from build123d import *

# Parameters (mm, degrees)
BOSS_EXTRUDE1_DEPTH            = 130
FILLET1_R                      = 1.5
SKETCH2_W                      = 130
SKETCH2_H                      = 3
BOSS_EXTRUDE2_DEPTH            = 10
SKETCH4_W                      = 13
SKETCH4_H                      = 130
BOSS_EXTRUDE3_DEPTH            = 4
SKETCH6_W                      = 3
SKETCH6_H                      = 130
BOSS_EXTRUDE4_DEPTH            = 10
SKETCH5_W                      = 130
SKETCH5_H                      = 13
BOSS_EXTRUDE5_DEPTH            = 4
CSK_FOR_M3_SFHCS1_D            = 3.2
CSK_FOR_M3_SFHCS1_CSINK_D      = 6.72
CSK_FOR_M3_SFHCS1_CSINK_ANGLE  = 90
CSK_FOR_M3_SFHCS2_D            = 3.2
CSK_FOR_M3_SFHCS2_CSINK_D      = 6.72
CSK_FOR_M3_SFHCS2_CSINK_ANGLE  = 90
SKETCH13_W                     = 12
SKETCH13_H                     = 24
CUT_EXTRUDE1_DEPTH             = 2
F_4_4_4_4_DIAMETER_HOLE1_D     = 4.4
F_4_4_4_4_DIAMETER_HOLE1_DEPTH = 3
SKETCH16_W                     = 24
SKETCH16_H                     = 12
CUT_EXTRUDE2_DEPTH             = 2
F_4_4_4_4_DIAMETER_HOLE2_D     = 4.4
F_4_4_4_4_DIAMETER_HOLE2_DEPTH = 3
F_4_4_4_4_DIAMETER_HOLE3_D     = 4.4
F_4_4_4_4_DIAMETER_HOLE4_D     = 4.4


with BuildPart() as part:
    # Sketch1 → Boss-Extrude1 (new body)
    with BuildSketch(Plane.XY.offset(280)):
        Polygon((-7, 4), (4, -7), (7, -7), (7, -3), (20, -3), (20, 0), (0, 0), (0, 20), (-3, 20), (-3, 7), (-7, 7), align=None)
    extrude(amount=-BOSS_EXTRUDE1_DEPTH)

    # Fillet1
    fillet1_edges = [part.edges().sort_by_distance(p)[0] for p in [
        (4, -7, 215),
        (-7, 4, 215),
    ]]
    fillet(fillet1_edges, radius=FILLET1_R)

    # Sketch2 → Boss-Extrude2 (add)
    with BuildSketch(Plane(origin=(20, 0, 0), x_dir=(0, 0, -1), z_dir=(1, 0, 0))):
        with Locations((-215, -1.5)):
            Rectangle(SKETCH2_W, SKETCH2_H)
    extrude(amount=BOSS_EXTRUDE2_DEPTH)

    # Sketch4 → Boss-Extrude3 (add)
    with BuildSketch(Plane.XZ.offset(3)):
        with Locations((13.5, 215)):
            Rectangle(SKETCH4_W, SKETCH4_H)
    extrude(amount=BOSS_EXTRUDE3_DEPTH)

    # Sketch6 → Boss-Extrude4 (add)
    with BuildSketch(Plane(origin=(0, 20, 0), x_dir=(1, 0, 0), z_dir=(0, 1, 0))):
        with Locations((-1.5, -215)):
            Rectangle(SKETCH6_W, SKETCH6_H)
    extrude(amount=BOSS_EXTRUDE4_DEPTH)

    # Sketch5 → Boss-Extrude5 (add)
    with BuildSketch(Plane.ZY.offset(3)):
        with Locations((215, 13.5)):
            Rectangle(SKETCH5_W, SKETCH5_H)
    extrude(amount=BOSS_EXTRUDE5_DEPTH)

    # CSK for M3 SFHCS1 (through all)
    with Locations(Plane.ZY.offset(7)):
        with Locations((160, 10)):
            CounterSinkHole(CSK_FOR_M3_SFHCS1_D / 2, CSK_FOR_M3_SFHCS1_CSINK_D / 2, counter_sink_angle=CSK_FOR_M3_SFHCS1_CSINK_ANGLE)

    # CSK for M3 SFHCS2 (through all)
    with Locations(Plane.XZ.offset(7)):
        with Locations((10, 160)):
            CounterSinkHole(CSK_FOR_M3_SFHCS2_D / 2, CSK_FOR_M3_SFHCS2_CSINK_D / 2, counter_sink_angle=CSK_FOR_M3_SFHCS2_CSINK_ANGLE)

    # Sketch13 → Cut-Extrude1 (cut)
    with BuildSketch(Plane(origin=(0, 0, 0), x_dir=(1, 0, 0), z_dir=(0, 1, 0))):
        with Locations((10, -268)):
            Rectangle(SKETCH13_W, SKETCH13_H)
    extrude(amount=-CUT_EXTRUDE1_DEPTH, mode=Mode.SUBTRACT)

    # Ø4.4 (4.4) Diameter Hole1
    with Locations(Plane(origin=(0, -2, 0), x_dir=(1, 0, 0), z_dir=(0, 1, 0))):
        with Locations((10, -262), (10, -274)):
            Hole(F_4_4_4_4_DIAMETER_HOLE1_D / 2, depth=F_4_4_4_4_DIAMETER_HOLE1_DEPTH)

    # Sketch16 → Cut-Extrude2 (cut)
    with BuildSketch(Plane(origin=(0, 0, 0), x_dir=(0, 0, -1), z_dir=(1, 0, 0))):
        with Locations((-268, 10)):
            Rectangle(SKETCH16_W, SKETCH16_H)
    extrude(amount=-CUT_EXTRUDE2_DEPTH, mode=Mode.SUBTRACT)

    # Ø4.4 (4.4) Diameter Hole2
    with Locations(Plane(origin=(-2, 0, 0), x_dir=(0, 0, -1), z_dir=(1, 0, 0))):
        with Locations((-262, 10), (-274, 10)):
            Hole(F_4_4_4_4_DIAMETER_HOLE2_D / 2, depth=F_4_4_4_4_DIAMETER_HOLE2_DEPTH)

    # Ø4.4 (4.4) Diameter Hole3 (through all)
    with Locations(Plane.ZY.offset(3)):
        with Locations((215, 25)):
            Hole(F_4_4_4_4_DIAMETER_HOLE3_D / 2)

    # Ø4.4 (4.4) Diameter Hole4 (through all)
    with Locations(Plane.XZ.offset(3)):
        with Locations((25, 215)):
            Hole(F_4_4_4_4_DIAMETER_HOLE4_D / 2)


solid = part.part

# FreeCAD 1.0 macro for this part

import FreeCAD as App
import Part
import Sketcher
from FreeCAD import Vector
Q = App.Units.Quantity


def edges_at(feature, points):
    """Names of the edges that pass closest to the given points."""
    edges = feature.Shape.Edges
    near = lambda p: min(range(len(edges)), key=lambda i: edges[i].distToShape(Part.Vertex(*p))[0])
    return sorted({f"Edge{near(p) + 1}" for p in points})

doc = App.newDocument("Part")
params = doc.addObject("Spreadsheet::Sheet", "Params")
for row, (alias, value) in enumerate([
    ("sketch1_width", "3 mm"),
    ("sketch1_width2", "13 mm"),
    ("sketch1_width3", "20 mm"),
    ("pad1_length", "130 mm"),
    ("fillet_radius", "1.5 mm"),
    ("sketch2_width", "3 mm"),
    ("sketch2_height", "130 mm"),
    ("pad2_length", "10 mm"),
    ("sketch3_width", "13 mm"),
    ("sketch3_height", "130 mm"),
    ("pad3_length", "4 mm"),
    ("sketch4_width", "3 mm"),
    ("sketch4_height", "130 mm"),
    ("pad4_length", "10 mm"),
    ("sketch5_width", "13 mm"),
    ("sketch5_height", "130 mm"),
    ("pad5_length", "4 mm"),
    ("sketch6_diameter", "3.2 mm"),
    ("hole_diameter", "3.2 mm"),
    ("hole_csink_diameter", "6.72 mm"),
    ("sketch7_diameter", "3.2 mm"),
    ("hole2_diameter", "3.2 mm"),
    ("hole2_csink_diameter", "6.72 mm"),
    ("sketch8_width", "12 mm"),
    ("sketch8_height", "24 mm"),
    ("pocket1_length", "2 mm"),
    ("sketch9_diameter", "4.4 mm"),
    ("hole3_diameter", "4.4 mm"),
    ("hole3_depth", "3 mm"),
    ("sketch10_width", "12 mm"),
    ("sketch10_height", "24 mm"),
    ("pocket2_length", "2 mm"),
    ("sketch11_diameter", "4.4 mm"),
    ("hole4_diameter", "4.4 mm"),
    ("hole4_depth", "3 mm"),
    ("sketch12_diameter", "4.4 mm"),
    ("hole5_diameter", "4.4 mm"),
    ("sketch13_diameter", "4.4 mm"),
    ("hole6_diameter", "4.4 mm"),
], start=1):
    params.set(f"A{row}", alias)
    params.set(f"B{row}", "=" + value)
    params.setAlias(f"B{row}", alias)

body = doc.addObject("PartDesign::Body", "Body")

# Sketch on XY plane
sketch1 = doc.addObject("Sketcher::SketchObject", "Sketch")
body.addObject(sketch1)
sketch1.AttachmentSupport = (doc.XY_Plane, [""])
sketch1.MapMode = "FlatFace"
sketch1.AttachmentOffset = App.Placement(Vector(0, 0, 280), App.Rotation())
sketch1.addGeometry(Part.LineSegment(Vector(-7, 4, 0), Vector(4, -7, 0)), False)
sketch1.addGeometry(Part.LineSegment(Vector(4, -7, 0), Vector(7, -7, 0)), False)
sketch1.addGeometry(Part.LineSegment(Vector(7, -7, 0), Vector(7, -3, 0)), False)
sketch1.addGeometry(Part.LineSegment(Vector(7, -3, 0), Vector(20, -3, 0)), False)
sketch1.addGeometry(Part.LineSegment(Vector(20, -3, 0), Vector(20, 0, 0)), False)
sketch1.addGeometry(Part.LineSegment(Vector(20, 0, 0), Vector(0, 0, 0)), False)
sketch1.addGeometry(Part.LineSegment(Vector(0, 0, 0), Vector(0, 20, 0)), False)
sketch1.addGeometry(Part.LineSegment(Vector(0, 20, 0), Vector(-3, 20, 0)), False)
sketch1.addGeometry(Part.LineSegment(Vector(-3, 20, 0), Vector(-3, 7, 0)), False)
sketch1.addGeometry(Part.LineSegment(Vector(-3, 7, 0), Vector(-7, 7, 0)), False)
sketch1.addGeometry(Part.LineSegment(Vector(-7, 7, 0), Vector(-7, 4, 0)), False)
sketch1.addConstraint(Sketcher.Constraint("Coincident", 0, 2, 1, 1))
sketch1.addConstraint(Sketcher.Constraint("Coincident", 1, 2, 2, 1))
sketch1.addConstraint(Sketcher.Constraint("Coincident", 2, 2, 3, 1))
sketch1.addConstraint(Sketcher.Constraint("Coincident", 3, 2, 4, 1))
sketch1.addConstraint(Sketcher.Constraint("Coincident", 4, 2, 5, 1))
sketch1.addConstraint(Sketcher.Constraint("Coincident", 5, 2, 6, 1))
sketch1.addConstraint(Sketcher.Constraint("Coincident", 6, 2, 7, 1))
sketch1.addConstraint(Sketcher.Constraint("Coincident", 7, 2, 8, 1))
sketch1.addConstraint(Sketcher.Constraint("Coincident", 8, 2, 9, 1))
sketch1.addConstraint(Sketcher.Constraint("Coincident", 9, 2, 10, 1))
sketch1.addConstraint(Sketcher.Constraint("Coincident", 10, 2, 0, 1))
sketch1.addConstraint(Sketcher.Constraint("Horizontal", 1))
sketch1.addConstraint(Sketcher.Constraint("Vertical", 2))
sketch1.addConstraint(Sketcher.Constraint("Horizontal", 3))
sketch1.addConstraint(Sketcher.Constraint("Vertical", 4))
sketch1.addConstraint(Sketcher.Constraint("Horizontal", 5))
sketch1.addConstraint(Sketcher.Constraint("Vertical", 6))
sketch1.addConstraint(Sketcher.Constraint("Horizontal", 7))
sketch1.addConstraint(Sketcher.Constraint("Vertical", 8))
sketch1.addConstraint(Sketcher.Constraint("Horizontal", 9))
sketch1.addConstraint(Sketcher.Constraint("Vertical", 10))
sketch1.addConstraint(Sketcher.Constraint("Coincident", 5, 2, -1, 1))
sketch1.addConstraint(Sketcher.Constraint("Symmetric", 1, 2, 9, 2, -1, 1))
sketch1.addConstraint(Sketcher.Constraint("Equal", 1, 7))
sketch1.addConstraint(Sketcher.Constraint("Equal", 9, 2))
sketch1.addConstraint(Sketcher.Constraint("Equal", 7, 4))
sketch1.addConstraint(Sketcher.Constraint("Equal", 5, 6))
sketch1.addConstraint(Sketcher.Constraint("Equal", 4, 10))
sketch1.addConstraint(Sketcher.Constraint("DistanceX", 1, 1, 1, 2, Q("3 mm")))
sketch1.addConstraint(Sketcher.Constraint("DistanceX", 3, 1, 3, 2, Q("13 mm")))
sketch1.addConstraint(Sketcher.Constraint("DistanceX", 5, 2, 5, 1, Q("20 mm")))
sketch1.setExpression("Constraints[28]", "Params.sketch1_width")
sketch1.setExpression("Constraints[29]", "Params.sketch1_width2")
sketch1.setExpression("Constraints[30]", "Params.sketch1_width3")
pad1 = doc.addObject("PartDesign::Pad", "Pad")
body.addObject(pad1)
pad1.Profile = sketch1
pad1.setExpression("Length", "Params.pad1_length")
pad1.Reversed = True
doc.recompute()

fillet = doc.addObject("PartDesign::Fillet", "Fillet")
body.addObject(fillet)
fillet.Base = (pad1, edges_at(pad1, [(4, -7, 215), (-7, 4, 215)]))
fillet.setExpression("Radius", "Params.fillet_radius")

# Sketch on YZ plane
sketch2 = doc.addObject("Sketcher::SketchObject", "Sketch001")
body.addObject(sketch2)
sketch2.AttachmentSupport = (doc.YZ_Plane, [""])
sketch2.MapMode = "FlatFace"
sketch2.AttachmentOffset = App.Placement(Vector(0, 0, 20), App.Rotation())
sketch2.addGeometry(Part.LineSegment(Vector(0, 280, 0), Vector(-3, 280, 0)), False)
sketch2.addGeometry(Part.LineSegment(Vector(-3, 280, 0), Vector(-3, 150, 0)), False)
sketch2.addGeometry(Part.LineSegment(Vector(-3, 150, 0), Vector(0, 150, 0)), False)
sketch2.addGeometry(Part.LineSegment(Vector(0, 150, 0), Vector(0, 280, 0)), False)
sketch2.addConstraint(Sketcher.Constraint("Coincident", 0, 2, 1, 1))
sketch2.addConstraint(Sketcher.Constraint("Coincident", 1, 2, 2, 1))
sketch2.addConstraint(Sketcher.Constraint("Coincident", 2, 2, 3, 1))
sketch2.addConstraint(Sketcher.Constraint("Coincident", 3, 2, 0, 1))
sketch2.addConstraint(Sketcher.Constraint("Horizontal", 0))
sketch2.addConstraint(Sketcher.Constraint("Vertical", 1))
sketch2.addConstraint(Sketcher.Constraint("Horizontal", 2))
sketch2.addConstraint(Sketcher.Constraint("Vertical", 3))
sketch2.addConstraint(Sketcher.Constraint("PointOnObject", 2, 2, -2))
sketch2.addConstraint(Sketcher.Constraint("DistanceX", 0, 2, 0, 1, Q("3 mm")))
sketch2.addConstraint(Sketcher.Constraint("DistanceY", 1, 2, 1, 1, Q("130 mm")))
sketch2.addConstraint(Sketcher.Constraint("DistanceY", -1, 1, 0, 2, Q("280 mm")))
sketch2.setExpression("Constraints[9]", "Params.sketch2_width")
sketch2.setExpression("Constraints[10]", "Params.sketch2_height")
pad2 = doc.addObject("PartDesign::Pad", "Pad001")
body.addObject(pad2)
pad2.Profile = sketch2
pad2.setExpression("Length", "Params.pad2_length")

# Sketch on XZ plane
sketch3 = doc.addObject("Sketcher::SketchObject", "Sketch002")
body.addObject(sketch3)
sketch3.AttachmentSupport = (doc.XZ_Plane, [""])
sketch3.MapMode = "FlatFace"
sketch3.AttachmentOffset = App.Placement(Vector(0, 0, 3), App.Rotation())
sketch3.addGeometry(Part.LineSegment(Vector(7, 280, 0), Vector(7, 150, 0)), False)
sketch3.addGeometry(Part.LineSegment(Vector(7, 150, 0), Vector(20, 150, 0)), False)
sketch3.addGeometry(Part.LineSegment(Vector(20, 150, 0), Vector(20, 280, 0)), False)
sketch3.addGeometry(Part.LineSegment(Vector(20, 280, 0), Vector(7, 280, 0)), False)
sketch3.addConstraint(Sketcher.Constraint("Coincident", 0, 2, 1, 1))
sketch3.addConstraint(Sketcher.Constraint("Coincident", 1, 2, 2, 1))
sketch3.addConstraint(Sketcher.Constraint("Coincident", 2, 2, 3, 1))
sketch3.addConstraint(Sketcher.Constraint("Coincident", 3, 2, 0, 1))
sketch3.addConstraint(Sketcher.Constraint("Vertical", 0))
sketch3.addConstraint(Sketcher.Constraint("Horizontal", 1))
sketch3.addConstraint(Sketcher.Constraint("Vertical", 2))
sketch3.addConstraint(Sketcher.Constraint("Horizontal", 3))
sketch3.addConstraint(Sketcher.Constraint("DistanceX", 1, 1, 1, 2, Q("13 mm")))
sketch3.addConstraint(Sketcher.Constraint("DistanceY", 0, 2, 0, 1, Q("130 mm")))
sketch3.addConstraint(Sketcher.Constraint("DistanceX", -1, 1, 0, 2, Q("7 mm")))
sketch3.addConstraint(Sketcher.Constraint("DistanceY", -1, 1, 0, 2, Q("150 mm")))
sketch3.setExpression("Constraints[8]", "Params.sketch3_width")
sketch3.setExpression("Constraints[9]", "Params.sketch3_height")
pad3 = doc.addObject("PartDesign::Pad", "Pad002")
body.addObject(pad3)
pad3.Profile = sketch3
pad3.setExpression("Length", "Params.pad3_length")

# Sketch on XZ plane
sketch4 = doc.addObject("Sketcher::SketchObject", "Sketch003")
body.addObject(sketch4)
sketch4.AttachmentSupport = (doc.XZ_Plane, [""])
sketch4.MapMode = "FlatFace"
sketch4.AttachmentOffset = App.Placement(Vector(0, 0, -20), App.Rotation())
sketch4.addGeometry(Part.LineSegment(Vector(-3, 150, 0), Vector(-3, 280, 0)), False)
sketch4.addGeometry(Part.LineSegment(Vector(-3, 280, 0), Vector(0, 280, 0)), False)
sketch4.addGeometry(Part.LineSegment(Vector(0, 280, 0), Vector(0, 150, 0)), False)
sketch4.addGeometry(Part.LineSegment(Vector(0, 150, 0), Vector(-3, 150, 0)), False)
sketch4.addConstraint(Sketcher.Constraint("Coincident", 0, 2, 1, 1))
sketch4.addConstraint(Sketcher.Constraint("Coincident", 1, 2, 2, 1))
sketch4.addConstraint(Sketcher.Constraint("Coincident", 2, 2, 3, 1))
sketch4.addConstraint(Sketcher.Constraint("Coincident", 3, 2, 0, 1))
sketch4.addConstraint(Sketcher.Constraint("Vertical", 0))
sketch4.addConstraint(Sketcher.Constraint("Horizontal", 1))
sketch4.addConstraint(Sketcher.Constraint("Vertical", 2))
sketch4.addConstraint(Sketcher.Constraint("Horizontal", 3))
sketch4.addConstraint(Sketcher.Constraint("PointOnObject", 1, 2, -2))
sketch4.addConstraint(Sketcher.Constraint("DistanceX", 1, 1, 1, 2, Q("3 mm")))
sketch4.addConstraint(Sketcher.Constraint("DistanceY", 0, 1, 0, 2, Q("130 mm")))
sketch4.addConstraint(Sketcher.Constraint("DistanceY", -1, 1, 0, 2, Q("280 mm")))
sketch4.setExpression("Constraints[9]", "Params.sketch4_width")
sketch4.setExpression("Constraints[10]", "Params.sketch4_height")
pad4 = doc.addObject("PartDesign::Pad", "Pad003")
body.addObject(pad4)
pad4.Profile = sketch4
pad4.setExpression("Length", "Params.pad4_length")
pad4.Reversed = True

# Sketch on YZ plane
sketch5 = doc.addObject("Sketcher::SketchObject", "Sketch004")
body.addObject(sketch5)
sketch5.AttachmentSupport = (doc.YZ_Plane, [""])
sketch5.MapMode = "FlatFace"
sketch5.AttachmentOffset = App.Placement(Vector(0, 0, -3), App.Rotation())
sketch5.addGeometry(Part.LineSegment(Vector(20, 150, 0), Vector(7, 150, 0)), False)
sketch5.addGeometry(Part.LineSegment(Vector(7, 150, 0), Vector(7, 280, 0)), False)
sketch5.addGeometry(Part.LineSegment(Vector(7, 280, 0), Vector(20, 280, 0)), False)
sketch5.addGeometry(Part.LineSegment(Vector(20, 280, 0), Vector(20, 150, 0)), False)
sketch5.addConstraint(Sketcher.Constraint("Coincident", 0, 2, 1, 1))
sketch5.addConstraint(Sketcher.Constraint("Coincident", 1, 2, 2, 1))
sketch5.addConstraint(Sketcher.Constraint("Coincident", 2, 2, 3, 1))
sketch5.addConstraint(Sketcher.Constraint("Coincident", 3, 2, 0, 1))
sketch5.addConstraint(Sketcher.Constraint("Horizontal", 0))
sketch5.addConstraint(Sketcher.Constraint("Vertical", 1))
sketch5.addConstraint(Sketcher.Constraint("Horizontal", 2))
sketch5.addConstraint(Sketcher.Constraint("Vertical", 3))
sketch5.addConstraint(Sketcher.Constraint("DistanceX", 0, 2, 0, 1, Q("13 mm")))
sketch5.addConstraint(Sketcher.Constraint("DistanceY", 1, 1, 1, 2, Q("130 mm")))
sketch5.addConstraint(Sketcher.Constraint("DistanceX", -1, 1, 0, 2, Q("7 mm")))
sketch5.addConstraint(Sketcher.Constraint("DistanceY", -1, 1, 0, 2, Q("150 mm")))
sketch5.setExpression("Constraints[8]", "Params.sketch5_width")
sketch5.setExpression("Constraints[9]", "Params.sketch5_height")
pad5 = doc.addObject("PartDesign::Pad", "Pad004")
body.addObject(pad5)
pad5.Profile = sketch5
pad5.setExpression("Length", "Params.pad5_length")
pad5.Reversed = True

# Sketch on YZ plane
sketch6 = doc.addObject("Sketcher::SketchObject", "Sketch005")
body.addObject(sketch6)
sketch6.AttachmentSupport = (doc.YZ_Plane, [""])
sketch6.MapMode = "FlatFace"
sketch6.AttachmentOffset = App.Placement(Vector(0, 0, -7), App.Rotation())
sketch6.addGeometry(Part.Circle(Vector(10, 160, 0), Vector(0, 0, 1), 1.6), False)
sketch6.addConstraint(Sketcher.Constraint("Diameter", 0, Q("3.2 mm")))
sketch6.addConstraint(Sketcher.Constraint("DistanceX", -1, 1, 0, 3, Q("10 mm")))
sketch6.addConstraint(Sketcher.Constraint("DistanceY", -1, 1, 0, 3, Q("160 mm")))
sketch6.setExpression("Constraints[0]", "Params.sketch6_diameter")
doc.recompute()
hole = doc.addObject("PartDesign::Hole", "Hole")
body.addObject(hole)
hole.Profile = sketch6
hole.ThreadType = "None"
hole.setExpression("Diameter", "Params.hole_diameter")
hole.DepthType = "ThroughAll"
hole.HoleCutType = "Countersink"
hole.setExpression("HoleCutDiameter", "Params.hole_csink_diameter")
hole.HoleCutCountersinkAngle = 90
hole.Reversed = True

# Sketch on XZ plane
sketch7 = doc.addObject("Sketcher::SketchObject", "Sketch006")
body.addObject(sketch7)
sketch7.AttachmentSupport = (doc.XZ_Plane, [""])
sketch7.MapMode = "FlatFace"
sketch7.AttachmentOffset = App.Placement(Vector(0, 0, 7), App.Rotation())
sketch7.addGeometry(Part.Circle(Vector(10, 160, 0), Vector(0, 0, 1), 1.6), False)
sketch7.addConstraint(Sketcher.Constraint("Diameter", 0, Q("3.2 mm")))
sketch7.addConstraint(Sketcher.Constraint("DistanceX", -1, 1, 0, 3, Q("10 mm")))
sketch7.addConstraint(Sketcher.Constraint("DistanceY", -1, 1, 0, 3, Q("160 mm")))
sketch7.setExpression("Constraints[0]", "Params.sketch7_diameter")
doc.recompute()
hole2 = doc.addObject("PartDesign::Hole", "Hole001")
body.addObject(hole2)
hole2.Profile = sketch7
hole2.ThreadType = "None"
hole2.setExpression("Diameter", "Params.hole2_diameter")
hole2.DepthType = "ThroughAll"
hole2.HoleCutType = "Countersink"
hole2.setExpression("HoleCutDiameter", "Params.hole2_csink_diameter")
hole2.HoleCutCountersinkAngle = 90

# Sketch on XZ plane
sketch8 = doc.addObject("Sketcher::SketchObject", "Sketch007")
body.addObject(sketch8)
sketch8.AttachmentSupport = (doc.XZ_Plane, [""])
sketch8.MapMode = "FlatFace"
sketch8.addGeometry(Part.LineSegment(Vector(4, 256, 0), Vector(4, 280, 0)), False)
sketch8.addGeometry(Part.LineSegment(Vector(4, 280, 0), Vector(16, 280, 0)), False)
sketch8.addGeometry(Part.LineSegment(Vector(16, 280, 0), Vector(16, 256, 0)), False)
sketch8.addGeometry(Part.LineSegment(Vector(16, 256, 0), Vector(4, 256, 0)), False)
sketch8.addConstraint(Sketcher.Constraint("Coincident", 0, 2, 1, 1))
sketch8.addConstraint(Sketcher.Constraint("Coincident", 1, 2, 2, 1))
sketch8.addConstraint(Sketcher.Constraint("Coincident", 2, 2, 3, 1))
sketch8.addConstraint(Sketcher.Constraint("Coincident", 3, 2, 0, 1))
sketch8.addConstraint(Sketcher.Constraint("Vertical", 0))
sketch8.addConstraint(Sketcher.Constraint("Horizontal", 1))
sketch8.addConstraint(Sketcher.Constraint("Vertical", 2))
sketch8.addConstraint(Sketcher.Constraint("Horizontal", 3))
sketch8.addConstraint(Sketcher.Constraint("DistanceX", 1, 1, 1, 2, Q("12 mm")))
sketch8.addConstraint(Sketcher.Constraint("DistanceY", 0, 1, 0, 2, Q("24 mm")))
sketch8.addConstraint(Sketcher.Constraint("DistanceX", -1, 1, 0, 2, Q("4 mm")))
sketch8.addConstraint(Sketcher.Constraint("DistanceY", -1, 1, 0, 2, Q("280 mm")))
sketch8.setExpression("Constraints[8]", "Params.sketch8_width")
sketch8.setExpression("Constraints[9]", "Params.sketch8_height")
pocket1 = doc.addObject("PartDesign::Pocket", "Pocket")
body.addObject(pocket1)
pocket1.Profile = sketch8
pocket1.setExpression("Length", "Params.pocket1_length")
pocket1.Reversed = True

# Sketch on XZ plane
sketch9 = doc.addObject("Sketcher::SketchObject", "Sketch008")
body.addObject(sketch9)
sketch9.AttachmentSupport = (doc.XZ_Plane, [""])
sketch9.MapMode = "FlatFace"
sketch9.AttachmentOffset = App.Placement(Vector(0, 0, 2), App.Rotation())
sketch9.addGeometry(Part.Circle(Vector(10, 262, 0), Vector(0, 0, 1), 2.2), False)
sketch9.addGeometry(Part.Circle(Vector(10, 274, 0), Vector(0, 0, 1), 2.2), False)
sketch9.addConstraint(Sketcher.Constraint("Equal", 0, 1))
sketch9.addConstraint(Sketcher.Constraint("Vertical", 0, 3, 1, 3))
sketch9.addConstraint(Sketcher.Constraint("Diameter", 0, Q("4.4 mm")))
sketch9.addConstraint(Sketcher.Constraint("DistanceX", -1, 1, 0, 3, Q("10 mm")))
sketch9.addConstraint(Sketcher.Constraint("DistanceY", -1, 1, 0, 3, Q("262 mm")))
sketch9.addConstraint(Sketcher.Constraint("DistanceY", -1, 1, 1, 3, Q("274 mm")))
sketch9.setExpression("Constraints[2]", "Params.sketch9_diameter")
doc.recompute()
hole3 = doc.addObject("PartDesign::Hole", "Hole002")
body.addObject(hole3)
hole3.Profile = sketch9
hole3.ThreadType = "None"
hole3.setExpression("Diameter", "Params.hole3_diameter")
hole3.DepthType = "Dimension"
hole3.setExpression("Depth", "Params.hole3_depth")
hole3.DrillPoint = "Flat"
hole3.Reversed = True

# Sketch on YZ plane
sketch10 = doc.addObject("Sketcher::SketchObject", "Sketch009")
body.addObject(sketch10)
sketch10.AttachmentSupport = (doc.YZ_Plane, [""])
sketch10.MapMode = "FlatFace"
sketch10.addGeometry(Part.LineSegment(Vector(16, 280, 0), Vector(4, 280, 0)), False)
sketch10.addGeometry(Part.LineSegment(Vector(4, 280, 0), Vector(4, 256, 0)), False)
sketch10.addGeometry(Part.LineSegment(Vector(4, 256, 0), Vector(16, 256, 0)), False)
sketch10.addGeometry(Part.LineSegment(Vector(16, 256, 0), Vector(16, 280, 0)), False)
sketch10.addConstraint(Sketcher.Constraint("Coincident", 0, 2, 1, 1))
sketch10.addConstraint(Sketcher.Constraint("Coincident", 1, 2, 2, 1))
sketch10.addConstraint(Sketcher.Constraint("Coincident", 2, 2, 3, 1))
sketch10.addConstraint(Sketcher.Constraint("Coincident", 3, 2, 0, 1))
sketch10.addConstraint(Sketcher.Constraint("Horizontal", 0))
sketch10.addConstraint(Sketcher.Constraint("Vertical", 1))
sketch10.addConstraint(Sketcher.Constraint("Horizontal", 2))
sketch10.addConstraint(Sketcher.Constraint("Vertical", 3))
sketch10.addConstraint(Sketcher.Constraint("DistanceX", 0, 2, 0, 1, Q("12 mm")))
sketch10.addConstraint(Sketcher.Constraint("DistanceY", 1, 2, 1, 1, Q("24 mm")))
sketch10.addConstraint(Sketcher.Constraint("DistanceX", -1, 1, 0, 2, Q("4 mm")))
sketch10.addConstraint(Sketcher.Constraint("DistanceY", -1, 1, 0, 2, Q("280 mm")))
sketch10.setExpression("Constraints[8]", "Params.sketch10_width")
sketch10.setExpression("Constraints[9]", "Params.sketch10_height")
pocket2 = doc.addObject("PartDesign::Pocket", "Pocket001")
body.addObject(pocket2)
pocket2.Profile = sketch10
pocket2.setExpression("Length", "Params.pocket2_length")

# Sketch on YZ plane
sketch11 = doc.addObject("Sketcher::SketchObject", "Sketch010")
body.addObject(sketch11)
sketch11.AttachmentSupport = (doc.YZ_Plane, [""])
sketch11.MapMode = "FlatFace"
sketch11.AttachmentOffset = App.Placement(Vector(0, 0, -2), App.Rotation())
sketch11.addGeometry(Part.Circle(Vector(10, 262, 0), Vector(0, 0, 1), 2.2), False)
sketch11.addGeometry(Part.Circle(Vector(10, 274, 0), Vector(0, 0, 1), 2.2), False)
sketch11.addConstraint(Sketcher.Constraint("Equal", 0, 1))
sketch11.addConstraint(Sketcher.Constraint("Vertical", 0, 3, 1, 3))
sketch11.addConstraint(Sketcher.Constraint("Diameter", 0, Q("4.4 mm")))
sketch11.addConstraint(Sketcher.Constraint("DistanceX", -1, 1, 0, 3, Q("10 mm")))
sketch11.addConstraint(Sketcher.Constraint("DistanceY", -1, 1, 0, 3, Q("262 mm")))
sketch11.addConstraint(Sketcher.Constraint("DistanceY", -1, 1, 1, 3, Q("274 mm")))
sketch11.setExpression("Constraints[2]", "Params.sketch11_diameter")
doc.recompute()
hole4 = doc.addObject("PartDesign::Hole", "Hole003")
body.addObject(hole4)
hole4.Profile = sketch11
hole4.ThreadType = "None"
hole4.setExpression("Diameter", "Params.hole4_diameter")
hole4.DepthType = "Dimension"
hole4.setExpression("Depth", "Params.hole4_depth")
hole4.DrillPoint = "Flat"

# Sketch on YZ plane
sketch12 = doc.addObject("Sketcher::SketchObject", "Sketch011")
body.addObject(sketch12)
sketch12.AttachmentSupport = (doc.YZ_Plane, [""])
sketch12.MapMode = "FlatFace"
sketch12.AttachmentOffset = App.Placement(Vector(0, 0, -3), App.Rotation())
sketch12.addGeometry(Part.Circle(Vector(25, 215, 0), Vector(0, 0, 1), 2.2), False)
sketch12.addConstraint(Sketcher.Constraint("Diameter", 0, Q("4.4 mm")))
sketch12.addConstraint(Sketcher.Constraint("DistanceX", -1, 1, 0, 3, Q("25 mm")))
sketch12.addConstraint(Sketcher.Constraint("DistanceY", -1, 1, 0, 3, Q("215 mm")))
sketch12.setExpression("Constraints[0]", "Params.sketch12_diameter")
doc.recompute()
hole5 = doc.addObject("PartDesign::Hole", "Hole004")
body.addObject(hole5)
hole5.Profile = sketch12
hole5.ThreadType = "None"
hole5.setExpression("Diameter", "Params.hole5_diameter")
hole5.DepthType = "ThroughAll"
hole5.Reversed = True

# Sketch on XZ plane
sketch13 = doc.addObject("Sketcher::SketchObject", "Sketch012")
body.addObject(sketch13)
sketch13.AttachmentSupport = (doc.XZ_Plane, [""])
sketch13.MapMode = "FlatFace"
sketch13.AttachmentOffset = App.Placement(Vector(0, 0, 3), App.Rotation())
sketch13.addGeometry(Part.Circle(Vector(25, 215, 0), Vector(0, 0, 1), 2.2), False)
sketch13.addConstraint(Sketcher.Constraint("Diameter", 0, Q("4.4 mm")))
sketch13.addConstraint(Sketcher.Constraint("DistanceX", -1, 1, 0, 3, Q("25 mm")))
sketch13.addConstraint(Sketcher.Constraint("DistanceY", -1, 1, 0, 3, Q("215 mm")))
sketch13.setExpression("Constraints[0]", "Params.sketch13_diameter")
doc.recompute()
hole6 = doc.addObject("PartDesign::Hole", "Hole005")
body.addObject(hole6)
hole6.Profile = sketch13
hole6.ThreadType = "None"
hole6.setExpression("Diameter", "Params.hole6_diameter")
hole6.DepthType = "ThroughAll"

doc.recompute()
